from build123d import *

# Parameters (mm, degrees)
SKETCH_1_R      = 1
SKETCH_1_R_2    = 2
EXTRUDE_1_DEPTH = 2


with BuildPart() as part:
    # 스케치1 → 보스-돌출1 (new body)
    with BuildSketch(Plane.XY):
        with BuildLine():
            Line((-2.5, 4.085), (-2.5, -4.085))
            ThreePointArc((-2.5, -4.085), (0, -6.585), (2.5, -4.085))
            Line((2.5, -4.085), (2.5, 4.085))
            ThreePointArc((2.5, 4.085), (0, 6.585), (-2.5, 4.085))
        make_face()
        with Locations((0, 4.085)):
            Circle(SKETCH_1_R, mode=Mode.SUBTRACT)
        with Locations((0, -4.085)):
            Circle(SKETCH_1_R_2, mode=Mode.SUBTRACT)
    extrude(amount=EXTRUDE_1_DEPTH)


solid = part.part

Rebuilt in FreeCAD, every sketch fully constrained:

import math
import FreeCAD as App
import Part
import Sketcher
Q = App.Units.Quantity

doc = App.newDocument("Part")
body = doc.addObject("PartDesign::Body", "Body")

# Sketch on XY plane
sketch1 = body.newObject("Sketcher::SketchObject", "Sketch")
sketch1.AttachmentSupport = (doc.getObject("XY_Plane"), [""])
sketch1.MapMode = "FlatFace"
sketch1.addGeometry([
    Part.LineSegment(App.Vector(-2.5, 4.085, 0), App.Vector(-2.5, -4.085, 0)),  # 0
    Part.ArcOfCircle(Part.Circle(App.Vector(0, -4.085, 0), App.Vector(0, 0, 1), 2.5), math.radians(180), math.radians(360)),  # 1
    Part.LineSegment(App.Vector(2.5, -4.085, 0), App.Vector(2.5, 4.085, 0)),  # 2
    Part.ArcOfCircle(Part.Circle(App.Vector(0, 4.085, 0), App.Vector(0, 0, 1), 2.5), math.radians(0), math.radians(180)),  # 3
    Part.Circle(App.Vector(0, -4.085, 0), App.Vector(0, 0, 1), 2),  # 4
    Part.Circle(App.Vector(0, 4.085, 0), App.Vector(0, 0, 1), 1),  # 5
], False)
sketch1.addConstraint([
    Sketcher.Constraint("Tangent", 0, 2, 1, 1),
    Sketcher.Constraint("Tangent", 1, 2, 2, 1),
    Sketcher.Constraint("Tangent", 2, 2, 3, 1),
    Sketcher.Constraint("Tangent", 3, 2, 0, 1),
    Sketcher.Constraint("Vertical", 0),
    Sketcher.Constraint("Vertical", 2),
    Sketcher.Constraint("Coincident", 4, 3, 1, 3),
    Sketcher.Constraint("Coincident", 5, 3, 3, 3),
    Sketcher.Constraint("Symmetric", 1, 3, 3, 3, -1, 1),
    Sketcher.Constraint("Diameter", 4, Q("4 mm")),
    Sketcher.Constraint("Diameter", 5, Q("2 mm")),
    Sketcher.Constraint("Radius", 1, Q("2.5 mm")),
    Sketcher.Constraint("DistanceY", 0, 2, 0, 1, Q("8.17 mm")),
])
pad1 = body.newObject("PartDesign::Pad", "Pad")
pad1.Profile = sketch1
pad1.Length = 2

doc.recompute()
